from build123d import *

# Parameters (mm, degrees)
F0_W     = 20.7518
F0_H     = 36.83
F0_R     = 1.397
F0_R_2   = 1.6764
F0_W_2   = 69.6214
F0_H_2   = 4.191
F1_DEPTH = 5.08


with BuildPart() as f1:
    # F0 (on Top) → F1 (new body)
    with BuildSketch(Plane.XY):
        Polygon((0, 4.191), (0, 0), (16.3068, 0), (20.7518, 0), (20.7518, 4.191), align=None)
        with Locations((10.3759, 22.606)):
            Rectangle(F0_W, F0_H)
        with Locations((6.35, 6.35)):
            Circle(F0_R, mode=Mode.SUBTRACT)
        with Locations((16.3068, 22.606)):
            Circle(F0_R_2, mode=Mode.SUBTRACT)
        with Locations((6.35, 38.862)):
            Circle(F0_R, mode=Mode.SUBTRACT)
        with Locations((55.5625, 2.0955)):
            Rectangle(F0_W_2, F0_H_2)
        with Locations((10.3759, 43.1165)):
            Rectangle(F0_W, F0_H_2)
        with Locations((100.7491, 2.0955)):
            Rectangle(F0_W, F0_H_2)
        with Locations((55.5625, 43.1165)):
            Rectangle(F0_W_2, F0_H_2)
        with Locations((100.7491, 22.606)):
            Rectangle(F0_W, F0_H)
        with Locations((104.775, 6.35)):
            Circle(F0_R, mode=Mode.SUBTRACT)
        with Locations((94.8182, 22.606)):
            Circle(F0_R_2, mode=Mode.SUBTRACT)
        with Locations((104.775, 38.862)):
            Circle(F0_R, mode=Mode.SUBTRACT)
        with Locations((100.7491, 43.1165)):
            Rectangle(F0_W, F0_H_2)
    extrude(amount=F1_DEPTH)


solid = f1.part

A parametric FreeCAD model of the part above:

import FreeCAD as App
import Part
import Sketcher
from FreeCAD import Vector
Q = App.Units.Quantity

doc = App.newDocument("Part")
body = doc.addObject("PartDesign::Body", "Body")

sketch1 = body.newObject("Sketcher::SketchObject", "Sketch")
sketch1.AttachmentSupport = (doc.getObject("XY_Plane"), [""])
sketch1.MapMode = "FlatFace"
sketch1.addGeometry(Part.LineSegment(Vector(111.1, 0, 0), Vector(111.1, 45.2, 0)), False)
sketch1.addGeometry(Part.LineSegment(Vector(111.1, 45.2, 0), Vector(0, 45.2, 0)), False)
sketch1.addGeometry(Part.LineSegment(Vector(0, 45.2, 0), Vector(0, 0, 0)), False)
sketch1.addGeometry(Part.LineSegment(Vector(0, 0, 0), Vector(111.1, 0, 0)), False)
sketch1.addGeometry(Part.Circle(Vector(6.3, 6.3, 0), Vector(0, 0, 1), 1.4), False)
sketch1.addGeometry(Part.Circle(Vector(16.3, 22.6, 0), Vector(0, 0, 1), 1.7), False)
sketch1.addGeometry(Part.LineSegment(Vector(20.8, 41, 0), Vector(90.4, 41, 0)), False)
sketch1.addGeometry(Part.LineSegment(Vector(90.4, 41, 0), Vector(90.4, 4.2, 0)), False)
sketch1.addGeometry(Part.LineSegment(Vector(90.4, 4.2, 0), Vector(20.8, 4.2, 0)), False)
sketch1.addGeometry(Part.LineSegment(Vector(20.8, 4.2, 0), Vector(20.8, 41, 0)), False)
sketch1.addGeometry(Part.Circle(Vector(104.8, 6.3, 0), Vector(0, 0, 1), 1.4), False)
sketch1.addGeometry(Part.Circle(Vector(94.8, 22.6, 0), Vector(0, 0, 1), 1.7), False)
sketch1.addGeometry(Part.Circle(Vector(6.3, 38.9, 0), Vector(0, 0, 1), 1.4), False)
sketch1.addGeometry(Part.Circle(Vector(104.8, 38.9, 0), Vector(0, 0, 1), 1.4), False)
sketch1.addConstraint(Sketcher.Constraint("Coincident", 0, 2, 1, 1))
sketch1.addConstraint(Sketcher.Constraint("Coincident", 1, 2, 2, 1))
sketch1.addConstraint(Sketcher.Constraint("Coincident", 2, 2, 3, 1))
sketch1.addConstraint(Sketcher.Constraint("Coincident", 3, 2, 0, 1))
sketch1.addConstraint(Sketcher.Constraint("Coincident", 6, 2, 7, 1))
sketch1.addConstraint(Sketcher.Constraint("Coincident", 7, 2, 8, 1))
sketch1.addConstraint(Sketcher.Constraint("Coincident", 8, 2, 9, 1))
sketch1.addConstraint(Sketcher.Constraint("Coincident", 9, 2, 6, 1))
sketch1.addConstraint(Sketcher.Constraint("Vertical", 0))
sketch1.addConstraint(Sketcher.Constraint("Horizontal", 1))
sketch1.addConstraint(Sketcher.Constraint("Vertical", 2))
sketch1.addConstraint(Sketcher.Constraint("Horizontal", 3))
sketch1.addConstraint(Sketcher.Constraint("Horizontal", 6))
sketch1.addConstraint(Sketcher.Constraint("Vertical", 7))
sketch1.addConstraint(Sketcher.Constraint("Horizontal", 8))
sketch1.addConstraint(Sketcher.Constraint("Vertical", 9))
sketch1.addConstraint(Sketcher.Constraint("Coincident", 2, 2, -1, 1))
sketch1.addConstraint(Sketcher.Constraint("Equal", 4, 10))
sketch1.addConstraint(Sketcher.Constraint("Equal", 5, 11))
sketch1.addConstraint(Sketcher.Constraint("Equal", 10, 12))
sketch1.addConstraint(Sketcher.Constraint("Equal", 12, 13))
sketch1.addConstraint(Sketcher.Constraint("Horizontal", 4, 3, 10, 3))
sketch1.addConstraint(Sketcher.Constraint("Horizontal", 5, 3, 11, 3))
sketch1.addConstraint(Sketcher.Constraint("Horizontal", 12, 3, 13, 3))
sketch1.addConstraint(Sketcher.Constraint("Vertical", 4, 3, 12, 3))
sketch1.addConstraint(Sketcher.Constraint("Vertical", 10, 3, 13, 3))
sketch1.addConstraint(Sketcher.Constraint("Diameter", 4, Q("0.11 in")))
sketch1.addConstraint(Sketcher.Constraint("Diameter", 5, Q("0.132 in")))
sketch1.addConstraint(Sketcher.Constraint("DistanceY", 0, 1, 0, 2, Q("1.78 in")))
sketch1.addConstraint(Sketcher.Constraint("DistanceY", 7, 2, 7, 1, Q("1.45 in")))
sketch1.addConstraint(Sketcher.Constraint("DistanceX", 1, 2, 1, 1, Q("4.375 in")))
sketch1.addConstraint(Sketcher.Constraint("DistanceX", 6, 1, 6, 2, Q("2.741 in")))
sketch1.addConstraint(Sketcher.Constraint("DistanceX", -1, 1, 4, 3, Q("0.25 in")))
sketch1.addConstraint(Sketcher.Constraint("DistanceY", -1, 1, 4, 3, Q("0.25 in")))
sketch1.addConstraint(Sketcher.Constraint("DistanceY", -1, 1, 5, 3, Q("0.89 in")))
sketch1.addConstraint(Sketcher.Constraint("DistanceY", -1, 1, 12, 3, Q("1.53 in")))
sketch1.addConstraint(Sketcher.Constraint("DistanceX", 13, 3, 0, 2, Q("0.25 in")))
sketch1.addConstraint(Sketcher.Constraint("DistanceX", -1, 1, 5, 3, Q("0.642 in")))
sketch1.addConstraint(Sketcher.Constraint("DistanceX", -1, 1, 11, 3, Q("3.733 in")))
sketch1.addConstraint(Sketcher.Constraint("DistanceX", -1, 1, 6, 2, Q("3.558 in")))
sketch1.addConstraint(Sketcher.Constraint("DistanceY", -1, 1, 6, 2, Q("1.615 in")))
pad1 = body.newObject("PartDesign::Pad", "Pad")
pad1.Profile = sketch1
pad1.Length = Q("0.2 in")

doc.recompute()
